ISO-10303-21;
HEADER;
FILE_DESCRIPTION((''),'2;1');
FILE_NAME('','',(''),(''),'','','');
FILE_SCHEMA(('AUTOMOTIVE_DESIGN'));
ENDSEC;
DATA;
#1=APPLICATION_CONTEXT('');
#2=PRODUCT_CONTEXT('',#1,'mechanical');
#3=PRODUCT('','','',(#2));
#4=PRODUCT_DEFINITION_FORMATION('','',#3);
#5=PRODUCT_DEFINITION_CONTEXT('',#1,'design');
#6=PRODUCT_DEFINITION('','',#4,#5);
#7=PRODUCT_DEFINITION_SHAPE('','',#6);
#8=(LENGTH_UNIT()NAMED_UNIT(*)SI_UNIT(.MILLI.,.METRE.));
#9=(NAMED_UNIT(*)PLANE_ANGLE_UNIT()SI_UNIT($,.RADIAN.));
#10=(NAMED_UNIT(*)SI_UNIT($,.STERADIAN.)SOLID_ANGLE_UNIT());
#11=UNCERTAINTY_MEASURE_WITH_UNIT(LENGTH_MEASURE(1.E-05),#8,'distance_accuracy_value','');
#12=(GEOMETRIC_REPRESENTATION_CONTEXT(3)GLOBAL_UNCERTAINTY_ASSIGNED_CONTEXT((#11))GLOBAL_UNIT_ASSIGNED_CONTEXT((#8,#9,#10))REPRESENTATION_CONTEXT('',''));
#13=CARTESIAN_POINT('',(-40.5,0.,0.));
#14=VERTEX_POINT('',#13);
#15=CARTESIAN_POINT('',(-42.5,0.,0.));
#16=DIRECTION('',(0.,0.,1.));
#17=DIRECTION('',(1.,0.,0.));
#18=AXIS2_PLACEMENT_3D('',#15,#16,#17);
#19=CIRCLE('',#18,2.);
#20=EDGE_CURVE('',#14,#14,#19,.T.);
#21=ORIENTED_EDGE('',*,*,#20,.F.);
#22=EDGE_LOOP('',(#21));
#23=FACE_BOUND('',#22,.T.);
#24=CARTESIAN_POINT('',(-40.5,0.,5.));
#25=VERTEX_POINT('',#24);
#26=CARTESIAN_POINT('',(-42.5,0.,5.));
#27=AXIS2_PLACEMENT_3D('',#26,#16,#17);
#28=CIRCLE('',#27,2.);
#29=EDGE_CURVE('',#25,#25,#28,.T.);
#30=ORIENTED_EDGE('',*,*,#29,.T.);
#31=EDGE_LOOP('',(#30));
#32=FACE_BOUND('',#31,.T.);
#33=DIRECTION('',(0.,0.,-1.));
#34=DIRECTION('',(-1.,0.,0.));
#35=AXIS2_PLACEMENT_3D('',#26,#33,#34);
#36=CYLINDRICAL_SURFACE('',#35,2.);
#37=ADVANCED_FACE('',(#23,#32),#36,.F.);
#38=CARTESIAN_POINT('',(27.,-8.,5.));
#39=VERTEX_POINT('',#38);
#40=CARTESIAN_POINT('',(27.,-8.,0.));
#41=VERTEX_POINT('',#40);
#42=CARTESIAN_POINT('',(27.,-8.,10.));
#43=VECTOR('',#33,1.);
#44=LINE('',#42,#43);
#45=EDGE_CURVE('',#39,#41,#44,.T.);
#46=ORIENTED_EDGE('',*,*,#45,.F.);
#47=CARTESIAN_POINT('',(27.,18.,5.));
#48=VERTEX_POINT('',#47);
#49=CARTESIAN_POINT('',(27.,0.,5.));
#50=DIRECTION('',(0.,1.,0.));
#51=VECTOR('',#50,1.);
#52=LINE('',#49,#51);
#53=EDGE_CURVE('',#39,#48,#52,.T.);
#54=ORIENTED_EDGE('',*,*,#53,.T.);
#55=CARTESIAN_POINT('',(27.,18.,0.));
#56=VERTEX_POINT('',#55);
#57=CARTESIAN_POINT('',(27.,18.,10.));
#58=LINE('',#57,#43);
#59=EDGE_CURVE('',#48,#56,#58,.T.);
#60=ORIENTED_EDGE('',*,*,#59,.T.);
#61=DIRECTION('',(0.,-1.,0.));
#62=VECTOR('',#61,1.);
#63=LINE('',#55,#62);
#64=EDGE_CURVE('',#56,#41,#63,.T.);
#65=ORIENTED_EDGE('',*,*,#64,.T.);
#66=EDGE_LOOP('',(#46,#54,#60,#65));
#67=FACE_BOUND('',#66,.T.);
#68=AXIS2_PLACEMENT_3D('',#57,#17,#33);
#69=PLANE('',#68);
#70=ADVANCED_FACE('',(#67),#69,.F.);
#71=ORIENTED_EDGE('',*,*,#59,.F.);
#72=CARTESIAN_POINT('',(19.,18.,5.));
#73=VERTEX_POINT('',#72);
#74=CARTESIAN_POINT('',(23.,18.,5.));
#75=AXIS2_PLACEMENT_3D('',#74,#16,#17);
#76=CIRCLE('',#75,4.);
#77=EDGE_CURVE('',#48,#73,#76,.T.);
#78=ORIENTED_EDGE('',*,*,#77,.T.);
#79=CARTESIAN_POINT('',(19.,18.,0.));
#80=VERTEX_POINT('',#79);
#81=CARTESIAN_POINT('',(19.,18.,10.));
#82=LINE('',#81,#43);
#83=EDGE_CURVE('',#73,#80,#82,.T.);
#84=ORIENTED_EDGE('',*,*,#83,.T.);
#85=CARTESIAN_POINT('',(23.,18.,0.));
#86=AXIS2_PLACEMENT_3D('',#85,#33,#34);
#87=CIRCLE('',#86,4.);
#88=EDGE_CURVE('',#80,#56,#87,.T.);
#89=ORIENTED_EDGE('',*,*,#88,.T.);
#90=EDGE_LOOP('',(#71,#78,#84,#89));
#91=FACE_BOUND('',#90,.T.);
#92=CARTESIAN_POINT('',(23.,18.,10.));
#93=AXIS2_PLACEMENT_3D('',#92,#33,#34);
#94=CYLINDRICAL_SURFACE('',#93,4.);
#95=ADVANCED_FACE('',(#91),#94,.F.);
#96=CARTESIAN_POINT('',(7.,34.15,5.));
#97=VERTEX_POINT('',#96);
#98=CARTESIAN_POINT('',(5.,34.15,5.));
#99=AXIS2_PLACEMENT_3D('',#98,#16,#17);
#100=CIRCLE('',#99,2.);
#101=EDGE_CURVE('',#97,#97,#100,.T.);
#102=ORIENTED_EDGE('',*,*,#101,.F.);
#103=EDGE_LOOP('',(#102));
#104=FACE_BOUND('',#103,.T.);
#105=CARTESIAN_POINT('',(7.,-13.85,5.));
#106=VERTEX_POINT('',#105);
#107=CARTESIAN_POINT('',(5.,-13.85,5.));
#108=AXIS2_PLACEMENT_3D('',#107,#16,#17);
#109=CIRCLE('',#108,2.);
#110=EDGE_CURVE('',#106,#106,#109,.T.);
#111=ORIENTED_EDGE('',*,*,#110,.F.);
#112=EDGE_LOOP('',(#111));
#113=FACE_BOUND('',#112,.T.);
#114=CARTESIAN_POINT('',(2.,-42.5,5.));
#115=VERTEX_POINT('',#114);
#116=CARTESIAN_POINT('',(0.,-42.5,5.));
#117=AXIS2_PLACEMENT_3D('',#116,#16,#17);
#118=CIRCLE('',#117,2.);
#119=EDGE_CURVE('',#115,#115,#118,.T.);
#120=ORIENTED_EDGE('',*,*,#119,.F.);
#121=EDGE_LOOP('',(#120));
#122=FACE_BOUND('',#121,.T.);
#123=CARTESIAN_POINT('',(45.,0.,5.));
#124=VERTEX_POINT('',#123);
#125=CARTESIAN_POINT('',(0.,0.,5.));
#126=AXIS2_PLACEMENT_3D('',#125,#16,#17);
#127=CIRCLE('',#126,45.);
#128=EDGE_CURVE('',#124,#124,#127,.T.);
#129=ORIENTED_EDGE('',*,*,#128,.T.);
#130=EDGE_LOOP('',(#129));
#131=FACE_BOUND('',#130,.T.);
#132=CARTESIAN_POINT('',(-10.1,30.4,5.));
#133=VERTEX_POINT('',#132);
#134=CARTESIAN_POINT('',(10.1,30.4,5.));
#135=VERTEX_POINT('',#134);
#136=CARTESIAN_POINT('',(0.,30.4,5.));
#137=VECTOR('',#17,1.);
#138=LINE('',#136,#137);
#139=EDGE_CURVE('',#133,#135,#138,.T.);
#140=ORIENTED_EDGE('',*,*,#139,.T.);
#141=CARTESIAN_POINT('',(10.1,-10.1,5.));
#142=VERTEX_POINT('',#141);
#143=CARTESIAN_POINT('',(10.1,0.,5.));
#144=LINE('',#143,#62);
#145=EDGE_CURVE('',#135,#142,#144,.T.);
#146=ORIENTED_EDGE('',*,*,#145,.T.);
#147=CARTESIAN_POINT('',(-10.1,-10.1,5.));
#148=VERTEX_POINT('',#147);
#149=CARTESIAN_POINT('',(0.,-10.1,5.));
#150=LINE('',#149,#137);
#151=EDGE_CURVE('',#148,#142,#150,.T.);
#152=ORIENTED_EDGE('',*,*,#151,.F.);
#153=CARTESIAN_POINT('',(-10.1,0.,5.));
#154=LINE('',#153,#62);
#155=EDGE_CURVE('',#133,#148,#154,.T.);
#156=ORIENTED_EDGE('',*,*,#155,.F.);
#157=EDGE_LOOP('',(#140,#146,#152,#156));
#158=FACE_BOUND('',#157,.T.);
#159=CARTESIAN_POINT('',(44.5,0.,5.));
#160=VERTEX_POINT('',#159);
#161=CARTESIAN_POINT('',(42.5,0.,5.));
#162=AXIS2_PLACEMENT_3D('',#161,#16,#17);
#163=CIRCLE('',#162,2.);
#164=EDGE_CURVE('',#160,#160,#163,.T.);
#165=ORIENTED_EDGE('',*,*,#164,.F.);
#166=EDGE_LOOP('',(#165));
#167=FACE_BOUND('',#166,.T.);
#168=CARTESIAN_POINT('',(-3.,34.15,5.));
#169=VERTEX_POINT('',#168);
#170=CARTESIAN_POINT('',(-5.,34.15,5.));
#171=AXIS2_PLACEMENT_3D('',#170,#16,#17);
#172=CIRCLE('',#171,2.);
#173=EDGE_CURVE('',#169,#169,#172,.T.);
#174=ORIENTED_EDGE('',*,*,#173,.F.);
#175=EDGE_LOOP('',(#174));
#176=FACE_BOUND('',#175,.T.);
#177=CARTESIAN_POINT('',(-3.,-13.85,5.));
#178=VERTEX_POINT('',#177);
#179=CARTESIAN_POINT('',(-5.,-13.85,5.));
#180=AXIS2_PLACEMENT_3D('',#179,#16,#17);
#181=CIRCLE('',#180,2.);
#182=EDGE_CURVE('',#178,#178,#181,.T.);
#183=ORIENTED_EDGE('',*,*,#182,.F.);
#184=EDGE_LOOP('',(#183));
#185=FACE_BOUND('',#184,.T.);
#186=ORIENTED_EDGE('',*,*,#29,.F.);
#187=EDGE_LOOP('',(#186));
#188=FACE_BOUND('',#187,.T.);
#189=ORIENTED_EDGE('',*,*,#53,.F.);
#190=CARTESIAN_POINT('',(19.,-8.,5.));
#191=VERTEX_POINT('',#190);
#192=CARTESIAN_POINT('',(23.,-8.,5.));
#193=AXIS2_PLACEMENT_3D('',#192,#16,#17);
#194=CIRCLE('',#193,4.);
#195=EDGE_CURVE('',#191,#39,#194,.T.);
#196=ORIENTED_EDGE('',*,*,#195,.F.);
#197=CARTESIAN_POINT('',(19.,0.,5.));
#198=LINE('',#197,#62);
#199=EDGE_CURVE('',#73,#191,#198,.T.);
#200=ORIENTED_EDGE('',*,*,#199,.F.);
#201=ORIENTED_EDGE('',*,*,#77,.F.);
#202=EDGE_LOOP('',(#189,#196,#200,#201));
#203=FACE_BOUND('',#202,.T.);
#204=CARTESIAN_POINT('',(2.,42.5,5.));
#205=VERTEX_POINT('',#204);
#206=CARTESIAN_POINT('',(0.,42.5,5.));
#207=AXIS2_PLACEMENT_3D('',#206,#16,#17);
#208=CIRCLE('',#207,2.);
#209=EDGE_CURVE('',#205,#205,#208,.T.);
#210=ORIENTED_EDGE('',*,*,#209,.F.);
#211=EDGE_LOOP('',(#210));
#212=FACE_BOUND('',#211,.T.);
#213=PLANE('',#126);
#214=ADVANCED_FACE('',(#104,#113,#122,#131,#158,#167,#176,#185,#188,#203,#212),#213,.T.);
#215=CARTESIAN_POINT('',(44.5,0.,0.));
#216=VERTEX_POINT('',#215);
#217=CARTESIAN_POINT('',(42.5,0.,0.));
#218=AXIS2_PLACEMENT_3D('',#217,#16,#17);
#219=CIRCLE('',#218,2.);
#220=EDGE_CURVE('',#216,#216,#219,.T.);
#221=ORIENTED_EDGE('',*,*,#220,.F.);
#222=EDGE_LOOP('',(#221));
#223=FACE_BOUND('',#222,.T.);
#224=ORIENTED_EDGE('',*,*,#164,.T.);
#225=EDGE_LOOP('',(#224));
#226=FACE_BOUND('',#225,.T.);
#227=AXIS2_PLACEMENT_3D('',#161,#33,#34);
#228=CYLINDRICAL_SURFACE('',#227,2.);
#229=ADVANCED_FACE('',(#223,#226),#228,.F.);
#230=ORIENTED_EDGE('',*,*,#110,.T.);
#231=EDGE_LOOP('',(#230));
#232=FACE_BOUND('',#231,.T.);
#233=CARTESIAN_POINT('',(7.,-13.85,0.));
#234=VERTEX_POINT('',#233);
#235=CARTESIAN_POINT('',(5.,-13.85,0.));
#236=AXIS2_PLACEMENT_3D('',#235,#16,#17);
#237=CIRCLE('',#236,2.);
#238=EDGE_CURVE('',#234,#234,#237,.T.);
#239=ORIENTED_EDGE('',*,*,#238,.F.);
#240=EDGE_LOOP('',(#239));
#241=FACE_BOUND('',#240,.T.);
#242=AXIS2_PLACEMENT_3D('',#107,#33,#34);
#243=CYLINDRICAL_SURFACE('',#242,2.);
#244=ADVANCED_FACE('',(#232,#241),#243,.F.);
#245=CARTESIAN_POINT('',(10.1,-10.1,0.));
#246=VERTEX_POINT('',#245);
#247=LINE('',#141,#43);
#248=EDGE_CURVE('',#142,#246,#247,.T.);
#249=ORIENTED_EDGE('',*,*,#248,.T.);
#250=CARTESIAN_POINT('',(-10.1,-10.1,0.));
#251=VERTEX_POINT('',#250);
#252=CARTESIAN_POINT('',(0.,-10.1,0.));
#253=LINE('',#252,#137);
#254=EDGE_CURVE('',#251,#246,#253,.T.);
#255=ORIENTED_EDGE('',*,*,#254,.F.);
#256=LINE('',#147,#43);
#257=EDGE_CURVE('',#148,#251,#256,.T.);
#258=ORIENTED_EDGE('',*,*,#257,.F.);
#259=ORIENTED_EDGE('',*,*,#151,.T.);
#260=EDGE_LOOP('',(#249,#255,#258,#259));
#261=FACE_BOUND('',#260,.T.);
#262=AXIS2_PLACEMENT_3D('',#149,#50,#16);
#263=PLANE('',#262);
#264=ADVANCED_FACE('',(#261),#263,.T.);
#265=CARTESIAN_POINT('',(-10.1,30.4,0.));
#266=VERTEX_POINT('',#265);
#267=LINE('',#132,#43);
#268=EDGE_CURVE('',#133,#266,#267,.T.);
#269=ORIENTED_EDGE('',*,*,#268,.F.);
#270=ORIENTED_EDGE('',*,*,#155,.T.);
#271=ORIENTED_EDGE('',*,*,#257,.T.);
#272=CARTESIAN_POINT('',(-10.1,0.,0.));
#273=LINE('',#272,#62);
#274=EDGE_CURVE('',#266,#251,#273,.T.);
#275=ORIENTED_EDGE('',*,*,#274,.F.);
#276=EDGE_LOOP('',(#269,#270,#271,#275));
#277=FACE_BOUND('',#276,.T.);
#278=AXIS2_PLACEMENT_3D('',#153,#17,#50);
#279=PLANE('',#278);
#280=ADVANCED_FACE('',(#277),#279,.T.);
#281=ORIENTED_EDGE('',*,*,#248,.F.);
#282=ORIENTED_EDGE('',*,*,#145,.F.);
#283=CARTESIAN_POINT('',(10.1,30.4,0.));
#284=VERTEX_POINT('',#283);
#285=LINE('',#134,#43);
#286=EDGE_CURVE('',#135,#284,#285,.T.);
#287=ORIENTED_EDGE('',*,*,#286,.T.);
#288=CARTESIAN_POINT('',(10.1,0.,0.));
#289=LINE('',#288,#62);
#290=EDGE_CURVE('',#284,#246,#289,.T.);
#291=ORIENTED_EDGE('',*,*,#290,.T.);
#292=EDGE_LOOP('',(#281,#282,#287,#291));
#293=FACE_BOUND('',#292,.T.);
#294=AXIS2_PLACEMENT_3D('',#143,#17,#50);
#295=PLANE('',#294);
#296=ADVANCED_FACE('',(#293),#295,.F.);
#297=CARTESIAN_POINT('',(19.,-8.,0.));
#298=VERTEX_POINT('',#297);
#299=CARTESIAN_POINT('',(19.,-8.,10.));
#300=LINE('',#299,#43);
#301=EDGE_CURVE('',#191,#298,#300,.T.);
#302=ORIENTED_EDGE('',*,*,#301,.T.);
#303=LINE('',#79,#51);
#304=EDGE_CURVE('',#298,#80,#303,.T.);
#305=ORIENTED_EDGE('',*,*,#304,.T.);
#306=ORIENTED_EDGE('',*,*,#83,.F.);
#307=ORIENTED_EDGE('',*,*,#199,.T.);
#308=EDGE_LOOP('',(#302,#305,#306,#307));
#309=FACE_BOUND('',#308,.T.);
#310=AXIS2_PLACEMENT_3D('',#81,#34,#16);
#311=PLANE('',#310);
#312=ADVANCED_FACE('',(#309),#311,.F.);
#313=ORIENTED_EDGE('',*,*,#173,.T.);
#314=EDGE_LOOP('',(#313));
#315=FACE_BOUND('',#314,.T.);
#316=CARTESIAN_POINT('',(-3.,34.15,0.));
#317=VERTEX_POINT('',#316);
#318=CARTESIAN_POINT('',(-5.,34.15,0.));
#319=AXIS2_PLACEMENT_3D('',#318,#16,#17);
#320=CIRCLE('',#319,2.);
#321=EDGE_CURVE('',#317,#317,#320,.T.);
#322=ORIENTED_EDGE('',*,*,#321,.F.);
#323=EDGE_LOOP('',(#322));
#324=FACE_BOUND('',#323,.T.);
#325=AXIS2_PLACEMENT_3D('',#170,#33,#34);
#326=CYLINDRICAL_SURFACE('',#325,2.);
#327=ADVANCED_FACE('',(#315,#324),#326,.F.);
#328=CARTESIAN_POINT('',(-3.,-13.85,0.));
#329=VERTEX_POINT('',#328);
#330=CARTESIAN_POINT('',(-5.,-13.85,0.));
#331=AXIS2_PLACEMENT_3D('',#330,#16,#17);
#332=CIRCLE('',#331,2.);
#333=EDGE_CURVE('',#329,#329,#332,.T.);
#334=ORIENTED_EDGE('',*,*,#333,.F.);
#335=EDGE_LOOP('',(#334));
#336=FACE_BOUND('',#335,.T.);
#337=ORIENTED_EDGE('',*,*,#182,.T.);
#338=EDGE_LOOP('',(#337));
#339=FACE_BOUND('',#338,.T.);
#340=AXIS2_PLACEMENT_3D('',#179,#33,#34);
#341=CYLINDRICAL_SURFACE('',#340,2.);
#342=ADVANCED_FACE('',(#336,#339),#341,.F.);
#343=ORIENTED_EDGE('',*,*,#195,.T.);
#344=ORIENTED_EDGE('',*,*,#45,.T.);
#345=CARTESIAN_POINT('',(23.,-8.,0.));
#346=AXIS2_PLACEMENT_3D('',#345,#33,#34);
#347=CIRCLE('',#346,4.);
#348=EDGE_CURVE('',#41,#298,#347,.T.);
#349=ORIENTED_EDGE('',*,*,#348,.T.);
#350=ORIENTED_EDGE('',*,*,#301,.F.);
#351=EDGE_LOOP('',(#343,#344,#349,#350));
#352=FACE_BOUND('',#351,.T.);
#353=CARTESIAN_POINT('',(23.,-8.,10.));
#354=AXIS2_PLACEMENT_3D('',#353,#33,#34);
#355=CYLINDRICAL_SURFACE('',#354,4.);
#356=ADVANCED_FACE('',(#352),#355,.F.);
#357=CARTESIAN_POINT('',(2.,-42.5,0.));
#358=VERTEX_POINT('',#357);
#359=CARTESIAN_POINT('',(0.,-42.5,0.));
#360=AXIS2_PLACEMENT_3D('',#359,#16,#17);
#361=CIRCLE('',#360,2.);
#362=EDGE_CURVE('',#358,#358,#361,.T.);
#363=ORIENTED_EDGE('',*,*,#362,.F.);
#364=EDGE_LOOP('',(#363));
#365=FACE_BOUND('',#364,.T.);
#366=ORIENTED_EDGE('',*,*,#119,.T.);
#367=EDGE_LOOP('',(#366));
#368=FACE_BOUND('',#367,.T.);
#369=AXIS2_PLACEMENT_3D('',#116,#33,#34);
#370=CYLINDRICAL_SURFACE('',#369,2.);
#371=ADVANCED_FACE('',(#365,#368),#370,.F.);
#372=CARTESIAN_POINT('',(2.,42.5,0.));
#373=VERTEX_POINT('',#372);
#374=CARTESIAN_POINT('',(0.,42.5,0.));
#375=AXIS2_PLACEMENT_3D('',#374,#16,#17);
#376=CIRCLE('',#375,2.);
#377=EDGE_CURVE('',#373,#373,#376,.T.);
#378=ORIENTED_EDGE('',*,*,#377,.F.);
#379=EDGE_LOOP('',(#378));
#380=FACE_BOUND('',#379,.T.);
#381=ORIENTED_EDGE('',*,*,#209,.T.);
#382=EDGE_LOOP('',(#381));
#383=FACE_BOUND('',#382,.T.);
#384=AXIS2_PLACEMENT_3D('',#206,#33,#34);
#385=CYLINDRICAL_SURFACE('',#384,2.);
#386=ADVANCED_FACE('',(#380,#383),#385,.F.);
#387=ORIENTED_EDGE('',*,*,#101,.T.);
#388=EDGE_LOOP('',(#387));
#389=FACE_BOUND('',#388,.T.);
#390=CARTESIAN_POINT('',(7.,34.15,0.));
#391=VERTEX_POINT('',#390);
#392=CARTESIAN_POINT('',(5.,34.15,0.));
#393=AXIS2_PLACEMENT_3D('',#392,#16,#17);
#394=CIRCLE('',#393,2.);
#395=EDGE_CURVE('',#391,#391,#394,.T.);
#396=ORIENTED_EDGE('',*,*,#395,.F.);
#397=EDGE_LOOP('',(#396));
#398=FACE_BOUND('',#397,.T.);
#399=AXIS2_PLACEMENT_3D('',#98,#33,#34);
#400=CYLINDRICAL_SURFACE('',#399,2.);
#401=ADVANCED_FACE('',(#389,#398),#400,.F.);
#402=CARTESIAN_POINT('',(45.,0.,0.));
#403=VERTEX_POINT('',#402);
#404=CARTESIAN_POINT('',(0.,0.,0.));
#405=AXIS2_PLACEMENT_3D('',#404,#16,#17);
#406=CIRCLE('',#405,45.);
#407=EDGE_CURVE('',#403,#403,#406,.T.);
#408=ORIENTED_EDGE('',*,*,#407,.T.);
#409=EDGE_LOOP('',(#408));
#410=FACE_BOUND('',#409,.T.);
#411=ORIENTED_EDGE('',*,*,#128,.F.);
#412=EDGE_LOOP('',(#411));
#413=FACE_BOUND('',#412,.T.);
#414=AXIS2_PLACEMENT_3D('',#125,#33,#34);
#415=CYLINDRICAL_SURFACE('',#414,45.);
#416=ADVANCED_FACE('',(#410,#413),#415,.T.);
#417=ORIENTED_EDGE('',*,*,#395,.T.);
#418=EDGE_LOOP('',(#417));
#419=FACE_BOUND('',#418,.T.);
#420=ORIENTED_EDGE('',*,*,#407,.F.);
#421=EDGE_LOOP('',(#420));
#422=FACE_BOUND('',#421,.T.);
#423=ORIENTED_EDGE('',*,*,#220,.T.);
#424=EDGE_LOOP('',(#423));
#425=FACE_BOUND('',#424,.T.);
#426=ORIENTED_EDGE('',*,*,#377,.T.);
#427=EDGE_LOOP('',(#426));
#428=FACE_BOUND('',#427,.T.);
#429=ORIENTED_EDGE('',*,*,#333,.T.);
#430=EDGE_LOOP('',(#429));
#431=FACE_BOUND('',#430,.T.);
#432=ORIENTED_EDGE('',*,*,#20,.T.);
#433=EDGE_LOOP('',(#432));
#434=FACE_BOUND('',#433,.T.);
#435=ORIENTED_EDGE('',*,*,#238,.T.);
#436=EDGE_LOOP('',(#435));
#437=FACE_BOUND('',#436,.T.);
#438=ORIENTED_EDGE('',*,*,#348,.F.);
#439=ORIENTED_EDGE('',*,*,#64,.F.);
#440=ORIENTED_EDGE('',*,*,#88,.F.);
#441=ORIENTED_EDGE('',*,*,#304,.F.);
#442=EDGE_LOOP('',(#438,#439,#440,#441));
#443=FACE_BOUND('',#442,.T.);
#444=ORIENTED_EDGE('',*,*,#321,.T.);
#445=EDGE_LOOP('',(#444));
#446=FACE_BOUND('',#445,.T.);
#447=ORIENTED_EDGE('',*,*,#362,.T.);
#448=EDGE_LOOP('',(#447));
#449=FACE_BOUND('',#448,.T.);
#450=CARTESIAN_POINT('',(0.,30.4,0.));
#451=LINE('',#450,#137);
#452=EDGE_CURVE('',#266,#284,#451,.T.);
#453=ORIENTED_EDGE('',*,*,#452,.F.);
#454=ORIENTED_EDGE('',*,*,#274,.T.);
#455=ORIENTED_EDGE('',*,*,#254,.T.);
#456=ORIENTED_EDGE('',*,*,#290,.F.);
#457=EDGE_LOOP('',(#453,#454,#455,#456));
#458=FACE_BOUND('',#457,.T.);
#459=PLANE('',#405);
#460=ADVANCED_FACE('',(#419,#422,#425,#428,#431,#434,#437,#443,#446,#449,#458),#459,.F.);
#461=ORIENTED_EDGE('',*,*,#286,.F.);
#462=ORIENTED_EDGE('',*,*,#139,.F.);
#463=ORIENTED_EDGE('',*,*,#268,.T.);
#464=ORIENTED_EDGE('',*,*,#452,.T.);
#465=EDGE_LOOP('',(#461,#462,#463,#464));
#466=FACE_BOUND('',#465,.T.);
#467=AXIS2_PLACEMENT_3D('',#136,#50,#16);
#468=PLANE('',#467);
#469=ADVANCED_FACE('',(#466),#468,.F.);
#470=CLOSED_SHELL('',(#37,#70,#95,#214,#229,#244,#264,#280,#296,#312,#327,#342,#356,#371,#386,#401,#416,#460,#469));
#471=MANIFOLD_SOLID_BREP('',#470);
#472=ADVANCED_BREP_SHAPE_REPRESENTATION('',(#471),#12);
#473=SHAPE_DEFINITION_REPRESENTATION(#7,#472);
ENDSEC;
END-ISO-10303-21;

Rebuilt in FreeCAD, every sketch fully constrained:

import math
import FreeCAD as App
import Part
import Sketcher
Q = App.Units.Quantity


def add_polygon(sketch, points):
    """Adds a closed chain of lines whose ends are joined by coincident constraints."""
    first, n = sketch.GeometryCount, len(points)
    for a, b in zip(points, points[1:] + points[:1]):
        sketch.addGeometry(Part.LineSegment(App.Vector(*a, 0), App.Vector(*b, 0)), False)
    for i in range(n):
        sketch.addConstraint(Sketcher.Constraint("Coincident", first + i, 2, first + (i + 1) % n, 1))

doc = App.newDocument("Part")
body = doc.addObject("PartDesign::Body", "Body")

# Sketch on XY plane
sketch1 = body.newObject("Sketcher::SketchObject", "Sketch")
sketch1.AttachmentSupport = (doc.getObject("XY_Plane"), [""])
sketch1.MapMode = "FlatFace"
sketch1.addGeometry(Part.Circle(App.Vector(0, 0, 0), App.Vector(0, 0, 1), 45), False)  # 0
sketch1.addGeometry(Part.Circle(App.Vector(-5, -13.8, 0), App.Vector(0, 0, 1), 2), False)  # 1
sketch1.addGeometry(Part.Circle(App.Vector(0, -42.5, 0), App.Vector(0, 0, 1), 2), False)  # 2
sketch1.addGeometry(Part.Circle(App.Vector(5, -13.8, 0), App.Vector(0, 0, 1), 2), False)  # 3
sketch1.addGeometry(Part.Circle(App.Vector(-42.5, 0, 0), App.Vector(0, 0, 1), 2), False)  # 4
sketch1.addGeometry(Part.Circle(App.Vector(-5, 34.1, 0), App.Vector(0, 0, 1), 2), False)  # 5
add_polygon(sketch1, [(10.1, -10.1), (-10.1, -10.1), (-10.1, 30.4), (10.1, 30.4)])  # lines 6-9
sketch1.addGeometry(Part.Circle(App.Vector(42.5, 0, 0), App.Vector(0, 0, 1), 2), False)  # 10
sketch1.addGeometry(Part.Circle(App.Vector(5, 34.1, 0), App.Vector(0, 0, 1), 2), False)  # 11
sketch1.addGeometry(Part.Circle(App.Vector(0, 42.5, 0), App.Vector(0, 0, 1), 2), False)  # 12
sketch1.addConstraint([
    Sketcher.Constraint("Horizontal", 6),
    Sketcher.Constraint("Vertical", 7),
    Sketcher.Constraint("Horizontal", 8),
    Sketcher.Constraint("Vertical", 9),
    Sketcher.Constraint("Coincident", 0, 3, -1, 1),
    Sketcher.Constraint("Equal", 1, 2),
    Sketcher.Constraint("Equal", 2, 3),
    Sketcher.Constraint("Equal", 3, 4),
    Sketcher.Constraint("Equal", 4, 5),
    Sketcher.Constraint("Equal", 5, 10),
    Sketcher.Constraint("Equal", 10, 11),
    Sketcher.Constraint("Equal", 11, 12),
    Sketcher.Constraint("Symmetric", 4, 3, 10, 3, -1, 1),
    Sketcher.Constraint("Symmetric", 2, 3, 12, 3, -1, 1),
    Sketcher.Constraint("Symmetric", 1, 3, 3, 3, -2),
    Sketcher.Constraint("Symmetric", 5, 3, 11, 3, -2),
    Sketcher.Constraint("PointOnObject", 2, 3, -2),
    Sketcher.Constraint("PointOnObject", 4, 3, -1),
    Sketcher.Constraint("Vertical", 1, 3, 5, 3),
    Sketcher.Constraint("Diameter", 0, Q("90 mm")),
    Sketcher.Constraint("Diameter", 1, Q("4 mm")),
    Sketcher.Constraint("DistanceX", 6, 2, 6, 1, Q("20.2 mm")),
    Sketcher.Constraint("DistanceY", 7, 1, 7, 2, Q("40.5 mm")),
    Sketcher.Constraint("DistanceX", 1, 3, -1, 1, Q("5 mm")),
    Sketcher.Constraint("DistanceY", 1, 3, 5, 3, Q("48 mm")),
    Sketcher.Constraint("DistanceY", 2, 3, -1, 1, Q("42.5 mm")),
    Sketcher.Constraint("DistanceX", 4, 3, -1, 1, Q("42.5 mm")),
    Sketcher.Constraint("DistanceX", 6, 2, -1, 1, Q("10.1 mm")),
    Sketcher.Constraint("DistanceY", 6, 2, -1, 1, Q("10.1 mm")),
    Sketcher.Constraint("DistanceY", 1, 3, -1, 1, Q("13.85 mm")),
])
pad1 = body.newObject("PartDesign::Pad", "Pad")
pad1.Profile = sketch1
pad1.Length = 5

# Sketch on XY plane
sketch2 = body.newObject("Sketcher::SketchObject", "Sketch001")
sketch2.AttachmentSupport = (doc.getObject("XY_Plane"), [""])
sketch2.MapMode = "FlatFace"
sketch2.addGeometry([
    Part.LineSegment(App.Vector(19, -8, 0), App.Vector(19, 18, 0)),
    Part.ArcOfCircle(Part.Circle(App.Vector(23, 18, 0), App.Vector(0, 0, 1), 4), math.radians(0), math.radians(180)),
    Part.LineSegment(App.Vector(27, 18, 0), App.Vector(27, -8, 0)),
    Part.ArcOfCircle(Part.Circle(App.Vector(23, -8, 0), App.Vector(0, 0, 1), 4), math.radians(180), math.radians(360)),
], False)
sketch2.addConstraint([
    Sketcher.Constraint("Tangent", 0, 2, 1, 2),
    Sketcher.Constraint("Tangent", 1, 1, 2, 1),
    Sketcher.Constraint("Tangent", 2, 2, 3, 2),
    Sketcher.Constraint("Tangent", 3, 1, 0, 1),
    Sketcher.Constraint("Vertical", 0),
    Sketcher.Constraint("Vertical", 2),
    Sketcher.Constraint("Radius", 1, Q("4 mm")),
    Sketcher.Constraint("DistanceY", 0, 1, 0, 2, Q("26 mm")),
    Sketcher.Constraint("DistanceX", -1, 1, 1, 3, Q("23 mm")),
    Sketcher.Constraint("DistanceY", -1, 1, 1, 3, Q("18 mm")),
])
pocket1 = body.newObject("PartDesign::Pocket", "Pocket")
pocket1.Profile = sketch2
pocket1.Length = 10
pocket1.Reversed = True

doc.recompute()
